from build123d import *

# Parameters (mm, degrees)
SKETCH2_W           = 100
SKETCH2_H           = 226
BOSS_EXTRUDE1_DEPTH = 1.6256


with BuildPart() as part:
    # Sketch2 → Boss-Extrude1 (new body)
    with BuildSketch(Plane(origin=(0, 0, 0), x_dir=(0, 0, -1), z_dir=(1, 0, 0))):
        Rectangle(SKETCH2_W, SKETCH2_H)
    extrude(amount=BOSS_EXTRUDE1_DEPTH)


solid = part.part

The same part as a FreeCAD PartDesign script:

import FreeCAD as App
import Part
import Sketcher
Q = App.Units.Quantity

doc = App.newDocument("Part")
body = doc.addObject("PartDesign::Body", "Body")

sketch1 = doc.addObject("Sketcher::SketchObject", "Sketch")
body.addObject(sketch1)
sketch1.AttachmentSupport = (doc.YZ_Plane, [""])
sketch1.MapMode = "FlatFace"
sketch1.addGeometry([
    Part.LineSegment(App.Vector(113, 50, 0), App.Vector(-113, 50, 0)),
    Part.LineSegment(App.Vector(-113, 50, 0), App.Vector(-113, -50, 0)),
    Part.LineSegment(App.Vector(-113, -50, 0), App.Vector(113, -50, 0)),
    Part.LineSegment(App.Vector(113, -50, 0), App.Vector(113, 50, 0)),
], False)
sketch1.addConstraint([
    Sketcher.Constraint("Coincident", 0, 2, 1, 1),
    Sketcher.Constraint("Coincident", 1, 2, 2, 1),
    Sketcher.Constraint("Coincident", 2, 2, 3, 1),
    Sketcher.Constraint("Coincident", 3, 2, 0, 1),
    Sketcher.Constraint("Horizontal", 0),
    Sketcher.Constraint("Vertical", 1),
    Sketcher.Constraint("Horizontal", 2),
    Sketcher.Constraint("Vertical", 3),
    Sketcher.Constraint("Symmetric", 0, 2, 2, 2, -1, 1),
    Sketcher.Constraint("DistanceX", 0, 2, 0, 1, Q("226 mm")),
    Sketcher.Constraint("DistanceY", 1, 2, 1, 1, Q("100 mm")),
])
pad1 = doc.addObject("PartDesign::Pad", "Pad")
body.addObject(pad1)
pad1.Profile = sketch1
pad1.Length = 1.6256

doc.recompute()
